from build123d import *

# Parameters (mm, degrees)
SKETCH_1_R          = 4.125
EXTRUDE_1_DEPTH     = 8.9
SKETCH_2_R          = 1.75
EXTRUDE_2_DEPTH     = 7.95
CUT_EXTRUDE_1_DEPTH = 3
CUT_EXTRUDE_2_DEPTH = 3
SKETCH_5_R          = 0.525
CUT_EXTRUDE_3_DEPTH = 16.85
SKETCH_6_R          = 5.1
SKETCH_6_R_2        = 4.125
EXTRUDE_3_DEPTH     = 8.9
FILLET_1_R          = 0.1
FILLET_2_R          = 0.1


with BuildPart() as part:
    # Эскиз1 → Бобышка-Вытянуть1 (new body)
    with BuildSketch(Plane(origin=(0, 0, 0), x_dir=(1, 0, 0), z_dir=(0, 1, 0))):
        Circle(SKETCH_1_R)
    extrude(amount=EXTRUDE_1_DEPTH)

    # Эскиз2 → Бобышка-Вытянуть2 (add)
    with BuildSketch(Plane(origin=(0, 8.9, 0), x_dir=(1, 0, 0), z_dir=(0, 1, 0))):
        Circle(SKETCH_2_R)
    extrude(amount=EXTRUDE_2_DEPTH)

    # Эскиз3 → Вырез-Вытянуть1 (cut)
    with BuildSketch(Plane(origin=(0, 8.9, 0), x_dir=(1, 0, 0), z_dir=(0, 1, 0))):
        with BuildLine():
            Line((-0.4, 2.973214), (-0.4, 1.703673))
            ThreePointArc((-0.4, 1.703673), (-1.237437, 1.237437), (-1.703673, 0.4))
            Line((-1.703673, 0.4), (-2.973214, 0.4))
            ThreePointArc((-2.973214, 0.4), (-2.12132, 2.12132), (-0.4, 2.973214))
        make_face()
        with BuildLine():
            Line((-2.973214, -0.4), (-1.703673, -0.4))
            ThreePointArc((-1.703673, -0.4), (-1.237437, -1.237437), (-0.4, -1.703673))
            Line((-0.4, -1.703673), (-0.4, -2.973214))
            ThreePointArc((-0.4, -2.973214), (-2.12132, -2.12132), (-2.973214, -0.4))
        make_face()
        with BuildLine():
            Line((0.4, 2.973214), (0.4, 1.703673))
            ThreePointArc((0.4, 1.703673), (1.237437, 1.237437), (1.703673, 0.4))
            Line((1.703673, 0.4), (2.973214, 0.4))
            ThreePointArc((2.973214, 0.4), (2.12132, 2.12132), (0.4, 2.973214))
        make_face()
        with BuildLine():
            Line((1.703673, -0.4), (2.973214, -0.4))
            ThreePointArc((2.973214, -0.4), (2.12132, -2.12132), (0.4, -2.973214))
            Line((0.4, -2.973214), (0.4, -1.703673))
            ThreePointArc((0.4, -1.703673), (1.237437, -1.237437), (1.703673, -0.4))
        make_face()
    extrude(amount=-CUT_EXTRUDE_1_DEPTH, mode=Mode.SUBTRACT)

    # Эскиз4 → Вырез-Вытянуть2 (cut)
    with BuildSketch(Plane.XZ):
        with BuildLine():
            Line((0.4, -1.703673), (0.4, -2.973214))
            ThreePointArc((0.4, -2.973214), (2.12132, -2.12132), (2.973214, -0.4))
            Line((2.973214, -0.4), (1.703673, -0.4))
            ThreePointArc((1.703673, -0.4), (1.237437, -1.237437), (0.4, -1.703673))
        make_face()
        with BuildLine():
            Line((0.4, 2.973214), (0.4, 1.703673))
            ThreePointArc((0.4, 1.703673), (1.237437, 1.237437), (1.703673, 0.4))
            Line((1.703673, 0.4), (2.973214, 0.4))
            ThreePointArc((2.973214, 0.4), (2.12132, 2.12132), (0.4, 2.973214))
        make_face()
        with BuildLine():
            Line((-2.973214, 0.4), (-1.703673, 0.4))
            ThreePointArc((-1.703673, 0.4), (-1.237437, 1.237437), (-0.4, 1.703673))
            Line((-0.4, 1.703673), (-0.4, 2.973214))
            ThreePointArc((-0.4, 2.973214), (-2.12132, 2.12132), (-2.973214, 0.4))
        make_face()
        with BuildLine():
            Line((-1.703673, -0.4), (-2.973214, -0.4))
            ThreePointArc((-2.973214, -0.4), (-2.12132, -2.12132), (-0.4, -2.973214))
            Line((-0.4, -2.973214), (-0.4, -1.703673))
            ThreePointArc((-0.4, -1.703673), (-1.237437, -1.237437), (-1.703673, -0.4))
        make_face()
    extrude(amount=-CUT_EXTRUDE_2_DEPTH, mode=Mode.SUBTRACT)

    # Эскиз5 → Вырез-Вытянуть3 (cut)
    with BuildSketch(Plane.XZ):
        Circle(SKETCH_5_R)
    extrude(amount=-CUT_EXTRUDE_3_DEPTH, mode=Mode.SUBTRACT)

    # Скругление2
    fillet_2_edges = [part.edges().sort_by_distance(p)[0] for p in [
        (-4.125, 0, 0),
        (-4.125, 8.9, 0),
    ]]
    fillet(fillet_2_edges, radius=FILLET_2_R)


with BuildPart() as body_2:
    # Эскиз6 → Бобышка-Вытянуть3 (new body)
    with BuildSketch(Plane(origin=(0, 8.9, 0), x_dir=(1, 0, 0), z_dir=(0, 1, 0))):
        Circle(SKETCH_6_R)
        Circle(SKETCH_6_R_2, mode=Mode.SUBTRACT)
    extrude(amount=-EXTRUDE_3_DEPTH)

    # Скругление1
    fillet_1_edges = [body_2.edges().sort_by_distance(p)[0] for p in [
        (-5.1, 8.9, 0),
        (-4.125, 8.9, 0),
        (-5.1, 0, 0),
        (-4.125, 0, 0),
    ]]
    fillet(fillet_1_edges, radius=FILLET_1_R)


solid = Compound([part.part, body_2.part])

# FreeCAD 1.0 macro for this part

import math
import FreeCAD as App
import Part
import Sketcher
from FreeCAD import Vector
Q = App.Units.Quantity


def edges_at(feature, points):
    """Names of the edges that pass closest to the given points."""
    edges = feature.Shape.Edges
    near = lambda p: min(range(len(edges)), key=lambda i: edges[i].distToShape(Part.Vertex(*p))[0])
    return sorted({f"Edge{near(p) + 1}" for p in points})

doc = App.newDocument("Part")
params = doc.addObject("Spreadsheet::Sheet", "Params")
for row, (alias, value) in enumerate([
    ("sketch1_diameter", "8.25 mm"),
    ("pad1_length", "8.9 mm"),
    ("sketch2_diameter", "3.5 mm"),
    ("pad2_length", "7.95 mm"),
    ("pocket1_length", "3 mm"),
    ("pocket2_length", "3 mm"),
    ("sketch5_diameter", "1.05 mm"),
    ("pocket3_length", "16.85 mm"),
    ("fillet_radius", "0.1 mm"),
    ("sketch6_diameter", "10.2 mm"),
    ("sketch6_diameter2", "8.25 mm"),
    ("pad3_length", "8.9 mm"),
    ("fillet2_radius", "0.1 mm"),
], start=1):
    params.set(f"A{row}", alias)
    params.set(f"B{row}", "=" + value)
    params.setAlias(f"B{row}", alias)

body = doc.addObject("PartDesign::Body", "Body")

sketch1 = doc.addObject("Sketcher::SketchObject", "Sketch")
body.addObject(sketch1)
sketch1.AttachmentSupport = (doc.XZ_Plane, [""])
sketch1.MapMode = "FlatFace"
sketch1.addGeometry(Part.Circle(Vector(0, 0, 0), Vector(0, 0, 1), 4.1), False)
sketch1.addConstraint(Sketcher.Constraint("Coincident", 0, 3, -1, 1))
sketch1.addConstraint(Sketcher.Constraint("Diameter", 0, Q("8.25 mm")))
sketch1.setExpression("Constraints[1]", "Params.sketch1_diameter")
pad1 = doc.addObject("PartDesign::Pad", "Pad")
body.addObject(pad1)
pad1.Profile = sketch1
pad1.setExpression("Length", "Params.pad1_length")
pad1.Reversed = True

sketch2 = doc.addObject("Sketcher::SketchObject", "Sketch001")
body.addObject(sketch2)
sketch2.AttachmentSupport = (doc.XZ_Plane, [""])
sketch2.MapMode = "FlatFace"
sketch2.AttachmentOffset = App.Placement(Vector(0, 0, -8.9), App.Rotation())
sketch2.addGeometry(Part.Circle(Vector(0, 0, 0), Vector(0, 0, 1), 1.8), False)
sketch2.addConstraint(Sketcher.Constraint("Coincident", 0, 3, -1, 1))
sketch2.addConstraint(Sketcher.Constraint("Diameter", 0, Q("3.5 mm")))
sketch2.setExpression("Constraints[1]", "Params.sketch2_diameter")
pad2 = doc.addObject("PartDesign::Pad", "Pad001")
body.addObject(pad2)
pad2.Profile = sketch2
pad2.setExpression("Length", "Params.pad2_length")
pad2.Reversed = True

sketch3 = doc.addObject("Sketcher::SketchObject", "Sketch002")
body.addObject(sketch3)
sketch3.AttachmentSupport = (doc.XZ_Plane, [""])
sketch3.MapMode = "FlatFace"
sketch3.AttachmentOffset = App.Placement(Vector(0, 0, -8.9), App.Rotation())
sketch3.addGeometry(Part.LineSegment(Vector(-0.4, -1.7, 0), Vector(-0.4, -3, 0)), False)
sketch3.addGeometry(Part.ArcOfCircle(Part.Circle(Vector(0, 0, 0), Vector(0, 0, 1), 3), math.radians(-172), math.radians(-98)), False)
sketch3.addGeometry(Part.LineSegment(Vector(-3, -0.4, 0), Vector(-1.7, -0.4, 0)), False)
sketch3.addGeometry(Part.ArcOfCircle(Part.Circle(Vector(0, 0, 0), Vector(0, 0, 1), 1.8), math.radians(-167), math.radians(-103)), False)
sketch3.addGeometry(Part.LineSegment(Vector(-1.7, 0.4, 0), Vector(-3, 0.4, 0)), False)
sketch3.addGeometry(Part.ArcOfCircle(Part.Circle(Vector(0, 0, 0), Vector(0, 0, 1), 3), math.radians(98), math.radians(172)), False)
sketch3.addGeometry(Part.LineSegment(Vector(-0.4, 3, 0), Vector(-0.4, 1.7, 0)), False)
sketch3.addGeometry(Part.ArcOfCircle(Part.Circle(Vector(0, 0, 0), Vector(0, 0, 1), 1.8), math.radians(103), math.radians(167)), False)
sketch3.addGeometry(Part.LineSegment(Vector(0.4, -3, 0), Vector(0.4, -1.7, 0)), False)
sketch3.addGeometry(Part.ArcOfCircle(Part.Circle(Vector(0, 0, 0), Vector(0, 0, 1), 1.8), math.radians(-77), math.radians(-13)), False)
sketch3.addGeometry(Part.LineSegment(Vector(1.7, -0.4, 0), Vector(3, -0.4, 0)), False)
sketch3.addGeometry(Part.ArcOfCircle(Part.Circle(Vector(0, 0, 0), Vector(0, 0, 1), 3), math.radians(-82), math.radians(-8)), False)
sketch3.addGeometry(Part.LineSegment(Vector(3, 0.4, 0), Vector(1.7, 0.4, 0)), False)
sketch3.addGeometry(Part.ArcOfCircle(Part.Circle(Vector(0, 0, 0), Vector(0, 0, 1), 1.8), math.radians(13), math.radians(77)), False)
sketch3.addGeometry(Part.LineSegment(Vector(0.4, 1.7, 0), Vector(0.4, 3, 0)), False)
sketch3.addGeometry(Part.ArcOfCircle(Part.Circle(Vector(0, 0, 0), Vector(0, 0, 1), 3), math.radians(8), math.radians(82)), False)
sketch3.addConstraint(Sketcher.Constraint("Coincident", 0, 2, 1, 2))
sketch3.addConstraint(Sketcher.Constraint("Coincident", 1, 1, 2, 1))
sketch3.addConstraint(Sketcher.Constraint("Coincident", 2, 2, 3, 1))
sketch3.addConstraint(Sketcher.Constraint("Coincident", 3, 2, 0, 1))
sketch3.addConstraint(Sketcher.Constraint("Coincident", 4, 2, 5, 2))
sketch3.addConstraint(Sketcher.Constraint("Coincident", 5, 1, 6, 1))
sketch3.addConstraint(Sketcher.Constraint("Coincident", 6, 2, 7, 1))
sketch3.addConstraint(Sketcher.Constraint("Coincident", 7, 2, 4, 1))
sketch3.addConstraint(Sketcher.Constraint("Coincident", 8, 2, 9, 1))
sketch3.addConstraint(Sketcher.Constraint("Coincident", 9, 2, 10, 1))
sketch3.addConstraint(Sketcher.Constraint("Coincident", 10, 2, 11, 2))
sketch3.addConstraint(Sketcher.Constraint("Coincident", 11, 1, 8, 1))
sketch3.addConstraint(Sketcher.Constraint("Coincident", 12, 2, 13, 1))
sketch3.addConstraint(Sketcher.Constraint("Coincident", 13, 2, 14, 1))
sketch3.addConstraint(Sketcher.Constraint("Coincident", 14, 2, 15, 2))
sketch3.addConstraint(Sketcher.Constraint("Coincident", 15, 1, 12, 1))
sketch3.addConstraint(Sketcher.Constraint("Vertical", 0))
sketch3.addConstraint(Sketcher.Constraint("Horizontal", 2))
sketch3.addConstraint(Sketcher.Constraint("Horizontal", 4))
sketch3.addConstraint(Sketcher.Constraint("Vertical", 6))
sketch3.addConstraint(Sketcher.Constraint("Vertical", 8))
sketch3.addConstraint(Sketcher.Constraint("Horizontal", 10))
sketch3.addConstraint(Sketcher.Constraint("Horizontal", 12))
sketch3.addConstraint(Sketcher.Constraint("Vertical", 14))
sketch3.addConstraint(Sketcher.Constraint("Coincident", 1, 3, -1, 1))
sketch3.addConstraint(Sketcher.Constraint("Coincident", 3, 3, -1, 1))
sketch3.addConstraint(Sketcher.Constraint("Coincident", 5, 3, -1, 1))
sketch3.addConstraint(Sketcher.Constraint("Coincident", 7, 3, -1, 1))
sketch3.addConstraint(Sketcher.Constraint("Coincident", 9, 3, -1, 1))
sketch3.addConstraint(Sketcher.Constraint("Coincident", 11, 3, -1, 1))
sketch3.addConstraint(Sketcher.Constraint("Coincident", 13, 3, -1, 1))
sketch3.addConstraint(Sketcher.Constraint("Coincident", 15, 3, -1, 1))
sketch3.addConstraint(Sketcher.Constraint("Equal", 1, 5))
sketch3.addConstraint(Sketcher.Constraint("Equal", 3, 7))
sketch3.addConstraint(Sketcher.Constraint("Equal", 7, 9))
sketch3.addConstraint(Sketcher.Constraint("Equal", 5, 11))
sketch3.addConstraint(Sketcher.Constraint("Equal", 9, 13))
sketch3.addConstraint(Sketcher.Constraint("Equal", 11, 15))
sketch3.addConstraint(Sketcher.Constraint("Horizontal", 3, 2, 8, 2))
sketch3.addConstraint(Sketcher.Constraint("Horizontal", 2, 2, 9, 2))
sketch3.addConstraint(Sketcher.Constraint("Horizontal", 7, 2, 12, 2))
sketch3.addConstraint(Sketcher.Constraint("Horizontal", 6, 2, 13, 2))
sketch3.addConstraint(Sketcher.Constraint("Vertical", 1, 1, 4, 2))
sketch3.addConstraint(Sketcher.Constraint("Vertical", 3, 2, 5, 1))
sketch3.addConstraint(Sketcher.Constraint("Equal", 12, 0))
sketch3.addConstraint(Sketcher.Constraint("DistanceX", 0, 2, -1, 1, Q("0.4 mm")))
sketch3.addConstraint(Sketcher.Constraint("Radius", 1, Q("3.000003 mm")))
sketch3.addConstraint(Sketcher.Constraint("Radius", 3, Q("1.750002 mm")))
pocket1 = doc.addObject("PartDesign::Pocket", "Pocket")
body.addObject(pocket1)
pocket1.Profile = sketch3
pocket1.setExpression("Length", "Params.pocket1_length")
pocket1.Reversed = True

sketch4 = doc.addObject("Sketcher::SketchObject", "Sketch003")
body.addObject(sketch4)
sketch4.AttachmentSupport = (doc.XZ_Plane, [""])
sketch4.MapMode = "FlatFace"
sketch4.addGeometry(Part.LineSegment(Vector(0.4, -1.7, 0), Vector(0.4, -3, 0)), False)
sketch4.addGeometry(Part.ArcOfCircle(Part.Circle(Vector(0, 0, 0), Vector(0, 0, 1), 3), math.radians(-82), math.radians(-8)), False)
sketch4.addGeometry(Part.LineSegment(Vector(3, -0.4, 0), Vector(1.7, -0.4, 0)), False)
sketch4.addGeometry(Part.ArcOfCircle(Part.Circle(Vector(0, 0, 0), Vector(0, 0, 1), 1.8), math.radians(-77), math.radians(-13)), False)
sketch4.addGeometry(Part.LineSegment(Vector(0.4, 3, 0), Vector(0.4, 1.7, 0)), False)
sketch4.addGeometry(Part.ArcOfCircle(Part.Circle(Vector(0, 0, 0), Vector(0, 0, 1), 1.8), math.radians(13), math.radians(77)), False)
sketch4.addGeometry(Part.LineSegment(Vector(1.7, 0.4, 0), Vector(3, 0.4, 0)), False)
sketch4.addGeometry(Part.ArcOfCircle(Part.Circle(Vector(0, 0, 0), Vector(0, 0, 1), 3), math.radians(8), math.radians(82)), False)
sketch4.addGeometry(Part.LineSegment(Vector(-3, 0.4, 0), Vector(-1.7, 0.4, 0)), False)
sketch4.addGeometry(Part.ArcOfCircle(Part.Circle(Vector(0, 0, 0), Vector(0, 0, 1), 1.8), math.radians(103), math.radians(167)), False)
sketch4.addGeometry(Part.LineSegment(Vector(-0.4, 1.7, 0), Vector(-0.4, 3, 0)), False)
sketch4.addGeometry(Part.ArcOfCircle(Part.Circle(Vector(0, 0, 0), Vector(0, 0, 1), 3), math.radians(98), math.radians(172)), False)
sketch4.addGeometry(Part.LineSegment(Vector(-1.7, -0.4, 0), Vector(-3, -0.4, 0)), False)
sketch4.addGeometry(Part.ArcOfCircle(Part.Circle(Vector(0, 0, 0), Vector(0, 0, 1), 3), math.radians(-172), math.radians(-98)), False)
sketch4.addGeometry(Part.LineSegment(Vector(-0.4, -3, 0), Vector(-0.4, -1.7, 0)), False)
sketch4.addGeometry(Part.ArcOfCircle(Part.Circle(Vector(0, 0, 0), Vector(0, 0, 1), 1.8), math.radians(-167), math.radians(-103)), False)
sketch4.addConstraint(Sketcher.Constraint("Coincident", 0, 2, 1, 1))
sketch4.addConstraint(Sketcher.Constraint("Coincident", 1, 2, 2, 1))
sketch4.addConstraint(Sketcher.Constraint("Coincident", 2, 2, 3, 2))
sketch4.addConstraint(Sketcher.Constraint("Coincident", 3, 1, 0, 1))
sketch4.addConstraint(Sketcher.Constraint("Coincident", 4, 2, 5, 2))
sketch4.addConstraint(Sketcher.Constraint("Coincident", 5, 1, 6, 1))
sketch4.addConstraint(Sketcher.Constraint("Coincident", 6, 2, 7, 1))
sketch4.addConstraint(Sketcher.Constraint("Coincident", 7, 2, 4, 1))
sketch4.addConstraint(Sketcher.Constraint("Coincident", 8, 2, 9, 2))
sketch4.addConstraint(Sketcher.Constraint("Coincident", 9, 1, 10, 1))
sketch4.addConstraint(Sketcher.Constraint("Coincident", 10, 2, 11, 1))
sketch4.addConstraint(Sketcher.Constraint("Coincident", 11, 2, 8, 1))
sketch4.addConstraint(Sketcher.Constraint("Coincident", 12, 2, 13, 1))
sketch4.addConstraint(Sketcher.Constraint("Coincident", 13, 2, 14, 1))
sketch4.addConstraint(Sketcher.Constraint("Coincident", 14, 2, 15, 2))
sketch4.addConstraint(Sketcher.Constraint("Coincident", 15, 1, 12, 1))
sketch4.addConstraint(Sketcher.Constraint("Vertical", 0))
sketch4.addConstraint(Sketcher.Constraint("Horizontal", 2))
sketch4.addConstraint(Sketcher.Constraint("Vertical", 4))
sketch4.addConstraint(Sketcher.Constraint("Horizontal", 6))
sketch4.addConstraint(Sketcher.Constraint("Horizontal", 8))
sketch4.addConstraint(Sketcher.Constraint("Vertical", 10))
sketch4.addConstraint(Sketcher.Constraint("Horizontal", 12))
sketch4.addConstraint(Sketcher.Constraint("Vertical", 14))
sketch4.addConstraint(Sketcher.Constraint("Coincident", 1, 3, -1, 1))
sketch4.addConstraint(Sketcher.Constraint("Coincident", 3, 3, -1, 1))
sketch4.addConstraint(Sketcher.Constraint("Coincident", 5, 3, -1, 1))
sketch4.addConstraint(Sketcher.Constraint("Coincident", 7, 3, -1, 1))
sketch4.addConstraint(Sketcher.Constraint("Coincident", 9, 3, -1, 1))
sketch4.addConstraint(Sketcher.Constraint("Coincident", 11, 3, -1, 1))
sketch4.addConstraint(Sketcher.Constraint("Coincident", 13, 3, -1, 1))
sketch4.addConstraint(Sketcher.Constraint("Coincident", 15, 3, -1, 1))
sketch4.addConstraint(Sketcher.Constraint("Equal", 3, 5))
sketch4.addConstraint(Sketcher.Constraint("Equal", 1, 7))
sketch4.addConstraint(Sketcher.Constraint("Equal", 5, 9))
sketch4.addConstraint(Sketcher.Constraint("Equal", 7, 11))
sketch4.addConstraint(Sketcher.Constraint("Equal", 11, 13))
sketch4.addConstraint(Sketcher.Constraint("Equal", 9, 15))
sketch4.addConstraint(Sketcher.Constraint("Horizontal", 6, 2, 8, 2))
sketch4.addConstraint(Sketcher.Constraint("Horizontal", 4, 2, 9, 1))
sketch4.addConstraint(Sketcher.Constraint("Horizontal", 2, 2, 12, 2))
sketch4.addConstraint(Sketcher.Constraint("Horizontal", 0, 2, 13, 2))
sketch4.addConstraint(Sketcher.Constraint("Vertical", 3, 1, 4, 2))
sketch4.addConstraint(Sketcher.Constraint("Vertical", 2, 2, 5, 1))
sketch4.addConstraint(Sketcher.Constraint("Equal", 12, 0))
sketch4.addConstraint(Sketcher.Constraint("DistanceX", -1, 1, 0, 2, Q("0.4 mm")))
sketch4.addConstraint(Sketcher.Constraint("Radius", 1, Q("3.000003 mm")))
sketch4.addConstraint(Sketcher.Constraint("Radius", 3, Q("1.750002 mm")))
pocket2 = doc.addObject("PartDesign::Pocket", "Pocket001")
body.addObject(pocket2)
pocket2.Profile = sketch4
pocket2.setExpression("Length", "Params.pocket2_length")

sketch5 = doc.addObject("Sketcher::SketchObject", "Sketch004")
body.addObject(sketch5)
sketch5.AttachmentSupport = (doc.XZ_Plane, [""])
sketch5.MapMode = "FlatFace"
sketch5.addGeometry(Part.Circle(Vector(0, 0, 0), Vector(0, 0, 1), 0.5), False)
sketch5.addConstraint(Sketcher.Constraint("Coincident", 0, 3, -1, 1))
sketch5.addConstraint(Sketcher.Constraint("Diameter", 0, Q("1.05 mm")))
sketch5.setExpression("Constraints[1]", "Params.sketch5_diameter")
pocket3 = doc.addObject("PartDesign::Pocket", "Pocket002")
body.addObject(pocket3)
pocket3.Profile = sketch5
pocket3.setExpression("Length", "Params.pocket3_length")
doc.recompute()

fillet = doc.addObject("PartDesign::Fillet", "Fillet")
body.addObject(fillet)
fillet.Base = (pocket3, edges_at(pocket3, [(-4.125, 0, 0), (-4.125, 8.9, 0)]))
fillet.setExpression("Radius", "Params.fillet_radius")
body2 = doc.addObject("PartDesign::Body", "Body001")

sketch6 = doc.addObject("Sketcher::SketchObject", "Sketch005")
body2.addObject(sketch6)
sketch6.AttachmentSupport = (doc.getObject("XZ_Plane001"), [""])
sketch6.MapMode = "FlatFace"
sketch6.AttachmentOffset = App.Placement(Vector(0, 0, -8.9), App.Rotation())
sketch6.addGeometry(Part.Circle(Vector(0, 0, 0), Vector(0, 0, 1), 5.1), False)
sketch6.addGeometry(Part.Circle(Vector(0, 0, 0), Vector(0, 0, 1), 4.1), False)
sketch6.addConstraint(Sketcher.Constraint("Coincident", 0, 3, -1, 1))
sketch6.addConstraint(Sketcher.Constraint("Coincident", 1, 3, -1, 1))
sketch6.addConstraint(Sketcher.Constraint("Diameter", 0, Q("10.2 mm")))
sketch6.addConstraint(Sketcher.Constraint("Diameter", 1, Q("8.25 mm")))
sketch6.setExpression("Constraints[2]", "Params.sketch6_diameter")
sketch6.setExpression("Constraints[3]", "Params.sketch6_diameter2")
pad3 = doc.addObject("PartDesign::Pad", "Pad002")
body2.addObject(pad3)
pad3.Profile = sketch6
pad3.setExpression("Length", "Params.pad3_length")
doc.recompute()

fillet2 = doc.addObject("PartDesign::Fillet", "Fillet001")
body2.addObject(fillet2)
fillet2.Base = (pad3, edges_at(pad3, [
    (-5.1, 8.9, 0),
    (-4.125, 8.9, 0),
    (-5.1, 0, 0),
    (-4.125, 0, 0),
]))
fillet2.setExpression("Radius", "Params.fillet2_radius")

doc.recompute()
